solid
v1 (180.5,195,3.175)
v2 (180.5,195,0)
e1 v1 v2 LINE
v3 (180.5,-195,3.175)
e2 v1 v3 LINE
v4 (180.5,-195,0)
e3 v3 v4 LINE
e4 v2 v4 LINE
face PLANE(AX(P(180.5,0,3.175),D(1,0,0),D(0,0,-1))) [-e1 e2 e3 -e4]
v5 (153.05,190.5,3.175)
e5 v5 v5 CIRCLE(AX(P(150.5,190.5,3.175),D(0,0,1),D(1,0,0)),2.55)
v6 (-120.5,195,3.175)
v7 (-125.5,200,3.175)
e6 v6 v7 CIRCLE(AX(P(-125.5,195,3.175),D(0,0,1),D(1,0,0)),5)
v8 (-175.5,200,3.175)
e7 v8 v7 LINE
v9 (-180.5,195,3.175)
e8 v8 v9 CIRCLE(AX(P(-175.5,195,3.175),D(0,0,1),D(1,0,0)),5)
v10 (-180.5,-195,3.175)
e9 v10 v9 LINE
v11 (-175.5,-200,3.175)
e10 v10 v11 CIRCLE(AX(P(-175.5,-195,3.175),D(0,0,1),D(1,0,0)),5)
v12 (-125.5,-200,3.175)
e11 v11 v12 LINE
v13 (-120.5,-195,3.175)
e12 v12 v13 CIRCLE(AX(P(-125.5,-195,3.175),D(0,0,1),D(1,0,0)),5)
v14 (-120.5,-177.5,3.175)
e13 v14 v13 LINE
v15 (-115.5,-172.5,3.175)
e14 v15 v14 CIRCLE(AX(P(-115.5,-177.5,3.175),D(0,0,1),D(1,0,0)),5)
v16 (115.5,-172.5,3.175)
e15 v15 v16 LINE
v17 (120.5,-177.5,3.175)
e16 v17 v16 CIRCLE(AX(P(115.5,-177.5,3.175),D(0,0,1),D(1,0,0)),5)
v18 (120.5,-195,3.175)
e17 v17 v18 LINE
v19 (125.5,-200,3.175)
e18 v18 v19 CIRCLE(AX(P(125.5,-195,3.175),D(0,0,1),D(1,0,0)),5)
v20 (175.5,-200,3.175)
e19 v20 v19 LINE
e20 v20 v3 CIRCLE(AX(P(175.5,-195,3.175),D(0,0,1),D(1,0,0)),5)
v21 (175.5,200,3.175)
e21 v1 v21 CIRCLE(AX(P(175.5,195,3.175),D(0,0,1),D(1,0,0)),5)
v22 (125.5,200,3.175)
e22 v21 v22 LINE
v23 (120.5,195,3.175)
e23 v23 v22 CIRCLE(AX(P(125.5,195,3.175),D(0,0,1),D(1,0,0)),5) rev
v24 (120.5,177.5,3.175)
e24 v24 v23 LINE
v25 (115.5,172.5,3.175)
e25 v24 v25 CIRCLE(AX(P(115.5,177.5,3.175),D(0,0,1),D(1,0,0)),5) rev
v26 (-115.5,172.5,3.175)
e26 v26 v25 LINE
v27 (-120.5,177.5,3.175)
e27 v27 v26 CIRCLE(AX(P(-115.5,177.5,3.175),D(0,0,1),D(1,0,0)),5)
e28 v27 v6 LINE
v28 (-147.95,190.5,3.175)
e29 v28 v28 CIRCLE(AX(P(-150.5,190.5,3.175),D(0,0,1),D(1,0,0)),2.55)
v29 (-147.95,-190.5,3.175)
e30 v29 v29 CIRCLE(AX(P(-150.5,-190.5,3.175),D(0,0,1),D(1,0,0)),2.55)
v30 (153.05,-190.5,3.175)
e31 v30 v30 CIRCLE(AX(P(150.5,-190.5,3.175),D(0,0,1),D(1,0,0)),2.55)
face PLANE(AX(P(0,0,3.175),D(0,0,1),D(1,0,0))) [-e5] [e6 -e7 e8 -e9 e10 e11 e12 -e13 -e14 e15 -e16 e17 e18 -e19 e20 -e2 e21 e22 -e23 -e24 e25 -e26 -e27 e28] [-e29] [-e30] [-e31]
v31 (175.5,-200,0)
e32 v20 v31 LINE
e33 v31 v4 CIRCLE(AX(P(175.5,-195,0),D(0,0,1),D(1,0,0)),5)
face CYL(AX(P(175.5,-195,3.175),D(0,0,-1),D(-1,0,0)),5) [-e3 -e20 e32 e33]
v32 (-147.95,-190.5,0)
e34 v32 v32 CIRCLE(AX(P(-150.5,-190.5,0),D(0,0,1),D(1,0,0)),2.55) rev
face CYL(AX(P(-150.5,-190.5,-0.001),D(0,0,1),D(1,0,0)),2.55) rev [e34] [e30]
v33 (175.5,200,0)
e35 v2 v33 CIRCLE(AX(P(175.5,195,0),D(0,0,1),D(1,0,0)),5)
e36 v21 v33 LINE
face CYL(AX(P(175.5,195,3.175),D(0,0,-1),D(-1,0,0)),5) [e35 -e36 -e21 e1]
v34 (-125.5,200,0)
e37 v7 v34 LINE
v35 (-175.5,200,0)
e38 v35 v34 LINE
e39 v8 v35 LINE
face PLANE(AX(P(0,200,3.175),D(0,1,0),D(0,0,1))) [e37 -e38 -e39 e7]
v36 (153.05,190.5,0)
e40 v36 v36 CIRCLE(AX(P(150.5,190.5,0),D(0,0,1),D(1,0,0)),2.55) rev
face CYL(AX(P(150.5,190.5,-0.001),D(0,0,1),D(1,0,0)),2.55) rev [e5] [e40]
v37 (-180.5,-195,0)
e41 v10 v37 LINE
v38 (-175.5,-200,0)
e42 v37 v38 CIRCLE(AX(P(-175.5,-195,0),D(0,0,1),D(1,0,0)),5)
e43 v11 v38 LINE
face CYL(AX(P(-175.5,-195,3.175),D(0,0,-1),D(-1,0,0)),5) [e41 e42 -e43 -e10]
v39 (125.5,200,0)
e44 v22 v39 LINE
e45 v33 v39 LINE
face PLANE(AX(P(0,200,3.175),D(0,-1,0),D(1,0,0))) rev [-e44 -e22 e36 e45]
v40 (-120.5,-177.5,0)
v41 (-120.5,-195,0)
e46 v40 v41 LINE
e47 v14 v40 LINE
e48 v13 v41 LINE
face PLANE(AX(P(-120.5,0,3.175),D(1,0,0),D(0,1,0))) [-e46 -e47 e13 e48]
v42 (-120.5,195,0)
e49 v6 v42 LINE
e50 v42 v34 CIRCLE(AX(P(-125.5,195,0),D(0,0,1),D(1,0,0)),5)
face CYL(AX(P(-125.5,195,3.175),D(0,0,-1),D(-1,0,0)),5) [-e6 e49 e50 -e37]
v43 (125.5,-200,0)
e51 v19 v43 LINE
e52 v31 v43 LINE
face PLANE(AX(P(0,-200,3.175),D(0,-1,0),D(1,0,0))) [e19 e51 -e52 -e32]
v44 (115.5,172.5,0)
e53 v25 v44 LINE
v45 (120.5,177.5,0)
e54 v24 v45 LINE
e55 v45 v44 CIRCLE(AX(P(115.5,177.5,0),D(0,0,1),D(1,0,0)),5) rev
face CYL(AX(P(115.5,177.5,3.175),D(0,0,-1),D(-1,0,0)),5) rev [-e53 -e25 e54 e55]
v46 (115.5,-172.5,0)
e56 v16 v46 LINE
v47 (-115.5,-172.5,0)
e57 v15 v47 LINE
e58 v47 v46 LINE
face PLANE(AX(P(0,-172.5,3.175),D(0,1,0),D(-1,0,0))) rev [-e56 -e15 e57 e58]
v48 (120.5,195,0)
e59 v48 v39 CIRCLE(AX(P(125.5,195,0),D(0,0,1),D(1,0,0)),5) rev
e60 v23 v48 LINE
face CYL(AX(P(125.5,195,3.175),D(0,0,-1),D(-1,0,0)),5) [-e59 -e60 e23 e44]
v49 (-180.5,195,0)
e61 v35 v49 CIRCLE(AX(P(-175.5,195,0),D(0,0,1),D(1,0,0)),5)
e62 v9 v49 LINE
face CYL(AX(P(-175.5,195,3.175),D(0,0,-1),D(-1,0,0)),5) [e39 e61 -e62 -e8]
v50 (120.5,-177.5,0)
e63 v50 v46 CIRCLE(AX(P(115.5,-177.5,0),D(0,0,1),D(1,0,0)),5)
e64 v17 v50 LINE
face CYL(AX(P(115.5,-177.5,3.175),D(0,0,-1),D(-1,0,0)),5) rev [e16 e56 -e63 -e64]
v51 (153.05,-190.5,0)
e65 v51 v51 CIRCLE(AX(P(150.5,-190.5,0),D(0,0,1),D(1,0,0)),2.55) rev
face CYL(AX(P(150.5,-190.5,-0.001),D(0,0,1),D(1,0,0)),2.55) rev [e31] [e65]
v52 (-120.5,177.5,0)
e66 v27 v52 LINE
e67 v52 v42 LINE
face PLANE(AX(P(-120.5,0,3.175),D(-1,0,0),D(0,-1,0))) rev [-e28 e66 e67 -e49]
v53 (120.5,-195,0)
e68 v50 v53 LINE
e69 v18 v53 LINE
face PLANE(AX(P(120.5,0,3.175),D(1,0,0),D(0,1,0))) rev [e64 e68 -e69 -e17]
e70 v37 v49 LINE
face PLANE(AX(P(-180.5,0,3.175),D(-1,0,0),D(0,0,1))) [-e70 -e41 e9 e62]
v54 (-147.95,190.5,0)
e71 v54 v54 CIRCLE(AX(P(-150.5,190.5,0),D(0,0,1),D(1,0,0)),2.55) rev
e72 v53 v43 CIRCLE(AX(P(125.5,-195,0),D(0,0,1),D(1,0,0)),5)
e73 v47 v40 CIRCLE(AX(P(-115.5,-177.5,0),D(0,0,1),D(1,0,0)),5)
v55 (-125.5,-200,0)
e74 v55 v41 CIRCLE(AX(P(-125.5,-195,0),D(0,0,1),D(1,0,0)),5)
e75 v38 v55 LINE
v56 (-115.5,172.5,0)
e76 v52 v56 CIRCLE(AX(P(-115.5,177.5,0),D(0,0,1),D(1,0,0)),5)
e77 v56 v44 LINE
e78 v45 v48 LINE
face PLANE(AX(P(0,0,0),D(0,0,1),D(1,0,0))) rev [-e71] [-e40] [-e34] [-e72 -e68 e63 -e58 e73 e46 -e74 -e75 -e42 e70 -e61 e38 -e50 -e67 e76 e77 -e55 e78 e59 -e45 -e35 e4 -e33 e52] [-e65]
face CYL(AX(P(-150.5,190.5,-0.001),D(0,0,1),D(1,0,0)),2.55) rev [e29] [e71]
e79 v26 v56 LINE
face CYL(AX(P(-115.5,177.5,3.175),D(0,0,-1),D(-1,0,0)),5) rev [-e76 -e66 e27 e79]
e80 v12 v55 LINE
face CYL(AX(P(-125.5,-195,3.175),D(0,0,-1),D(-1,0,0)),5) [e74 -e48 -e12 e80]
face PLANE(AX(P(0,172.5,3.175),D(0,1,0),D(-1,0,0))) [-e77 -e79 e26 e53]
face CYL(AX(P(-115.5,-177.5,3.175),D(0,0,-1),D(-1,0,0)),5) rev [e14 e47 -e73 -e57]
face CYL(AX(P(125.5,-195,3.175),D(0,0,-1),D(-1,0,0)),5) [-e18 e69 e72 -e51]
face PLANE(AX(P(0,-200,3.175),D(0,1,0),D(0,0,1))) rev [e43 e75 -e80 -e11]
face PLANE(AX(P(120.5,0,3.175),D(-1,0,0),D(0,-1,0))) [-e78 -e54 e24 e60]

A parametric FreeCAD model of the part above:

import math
import FreeCAD as App
import Part
import Sketcher
from FreeCAD import Vector

doc = App.newDocument("Part")
params = doc.addObject("Spreadsheet::Sheet", "Params")
for row, (alias, value) in enumerate([
    ("sketch1_radius", "5 mm"),
    ("sketch1_width", "50 mm"),
    ("sketch1_width2", "231 mm"),
    ("sketch1_height", "390 mm"),
    ("sketch1_height2", "17.5 mm"),
    ("pad1_length", "3.175 mm"),
    ("sketch2_diameter", "5.1 mm"),
    ("sketch3_diameter", "5.1 mm"),
    ("sketch4_diameter", "5.1 mm"),
    ("sketch5_diameter", "5.1 mm"),
], start=1):
    params.set(f"A{row}", alias)
    params.set(f"B{row}", "=" + value)
    params.setAlias(f"B{row}", alias)

body = doc.addObject("PartDesign::Body", "Body")

sketch1 = body.newObject("Sketcher::SketchObject", "Sketch")
sketch1.AttachmentSupport = (doc.getObject("XY_Plane"), [""])
sketch1.MapMode = "FlatFace"
sketch1.addGeometry([
    Part.LineSegment(Vector(175.5, 200, 0), Vector(125.5, 200, 0)),
    Part.ArcOfCircle(Part.Circle(Vector(125.5, 195, 0), Vector(0, 0, 1), 5), math.radians(90), math.radians(180)),
    Part.LineSegment(Vector(120.5, 195, 0), Vector(120.5, 177.5, 0)),
    Part.ArcOfCircle(Part.Circle(Vector(115.5, 177.5, 0), Vector(0, 0, 1), 5), math.radians(-90), math.radians(0)),
    Part.LineSegment(Vector(115.5, 172.5, 0), Vector(-115.5, 172.5, 0)),
    Part.ArcOfCircle(Part.Circle(Vector(-115.5, 177.5, 0), Vector(0, 0, 1), 5), math.radians(180), math.radians(270)),
    Part.LineSegment(Vector(-120.5, 177.5, 0), Vector(-120.5, 195, 0)),
    Part.ArcOfCircle(Part.Circle(Vector(-125.5, 195, 0), Vector(0, 0, 1), 5), math.radians(0), math.radians(90)),
    Part.LineSegment(Vector(-125.5, 200, 0), Vector(-175.5, 200, 0)),
    Part.ArcOfCircle(Part.Circle(Vector(-175.5, 195, 0), Vector(0, 0, 1), 5), math.radians(90), math.radians(180)),
    Part.LineSegment(Vector(-180.5, 195, 0), Vector(-180.5, -195, 0)),
    Part.ArcOfCircle(Part.Circle(Vector(-175.5, -195, 0), Vector(0, 0, 1), 5), math.radians(180), math.radians(270)),
    Part.LineSegment(Vector(-175.5, -200, 0), Vector(-125.5, -200, 0)),
    Part.ArcOfCircle(Part.Circle(Vector(-125.5, -195, 0), Vector(0, 0, 1), 5), math.radians(-90), math.radians(0)),
    Part.LineSegment(Vector(-120.5, -195, 0), Vector(-120.5, -177.5, 0)),
    Part.ArcOfCircle(Part.Circle(Vector(-115.5, -177.5, 0), Vector(0, 0, 1), 5), math.radians(90), math.radians(180)),
    Part.LineSegment(Vector(-115.5, -172.5, 0), Vector(115.5, -172.5, 0)),
    Part.ArcOfCircle(Part.Circle(Vector(115.5, -177.5, 0), Vector(0, 0, 1), 5), math.radians(0), math.radians(90)),
    Part.LineSegment(Vector(120.5, -177.5, 0), Vector(120.5, -195, 0)),
    Part.ArcOfCircle(Part.Circle(Vector(125.5, -195, 0), Vector(0, 0, 1), 5), math.radians(180), math.radians(270)),
    Part.LineSegment(Vector(125.5, -200, 0), Vector(175.5, -200, 0)),
    Part.ArcOfCircle(Part.Circle(Vector(175.5, -195, 0), Vector(0, 0, 1), 5), math.radians(-90), math.radians(0)),
    Part.LineSegment(Vector(180.5, -195, 0), Vector(180.5, 195, 0)),
    Part.ArcOfCircle(Part.Circle(Vector(175.5, 195, 0), Vector(0, 0, 1), 5), math.radians(0), math.radians(90)),
], False)
sketch1.addConstraint([
    Sketcher.Constraint("Tangent", 0, 2, 1, 1),
    Sketcher.Constraint("Tangent", 1, 2, 2, 1),
    Sketcher.Constraint("Tangent", 2, 2, 3, 2),
    Sketcher.Constraint("Tangent", 3, 1, 4, 1),
    Sketcher.Constraint("Tangent", 4, 2, 5, 2),
    Sketcher.Constraint("Tangent", 5, 1, 6, 1),
    Sketcher.Constraint("Tangent", 6, 2, 7, 1),
    Sketcher.Constraint("Tangent", 7, 2, 8, 1),
    Sketcher.Constraint("Tangent", 8, 2, 9, 1),
    Sketcher.Constraint("Tangent", 9, 2, 10, 1),
    Sketcher.Constraint("Tangent", 10, 2, 11, 1),
    Sketcher.Constraint("Tangent", 11, 2, 12, 1),
    Sketcher.Constraint("Tangent", 12, 2, 13, 1),
    Sketcher.Constraint("Tangent", 13, 2, 14, 1),
    Sketcher.Constraint("Tangent", 14, 2, 15, 2),
    Sketcher.Constraint("Tangent", 15, 1, 16, 1),
    Sketcher.Constraint("Tangent", 16, 2, 17, 2),
    Sketcher.Constraint("Tangent", 17, 1, 18, 1),
    Sketcher.Constraint("Tangent", 18, 2, 19, 1),
    Sketcher.Constraint("Tangent", 19, 2, 20, 1),
    Sketcher.Constraint("Tangent", 20, 2, 21, 1),
    Sketcher.Constraint("Tangent", 21, 2, 22, 1),
    Sketcher.Constraint("Tangent", 22, 2, 23, 1),
    Sketcher.Constraint("Tangent", 23, 2, 0, 1),
    Sketcher.Constraint("Horizontal", 0),
    Sketcher.Constraint("Vertical", 2),
    Sketcher.Constraint("Horizontal", 4),
    Sketcher.Constraint("Vertical", 6),
    Sketcher.Constraint("Horizontal", 8),
    Sketcher.Constraint("Vertical", 10),
    Sketcher.Constraint("Horizontal", 12),
    Sketcher.Constraint("Vertical", 14),
    Sketcher.Constraint("Horizontal", 16),
    Sketcher.Constraint("Vertical", 18),
    Sketcher.Constraint("Horizontal", 20),
    Sketcher.Constraint("Vertical", 22),
    Sketcher.Constraint("Equal", 1, 3),
    Sketcher.Constraint("Equal", 3, 5),
    Sketcher.Constraint("Equal", 5, 7),
    Sketcher.Constraint("Equal", 7, 9),
    Sketcher.Constraint("Equal", 9, 11),
    Sketcher.Constraint("Equal", 11, 13),
    Sketcher.Constraint("Equal", 13, 15),
    Sketcher.Constraint("Equal", 15, 17),
    Sketcher.Constraint("Equal", 17, 19),
    Sketcher.Constraint("Equal", 19, 21),
    Sketcher.Constraint("Equal", 21, 23),
    Sketcher.Constraint("Symmetric", 1, 3, 13, 3, -1, 1),
    Sketcher.Constraint("Symmetric", 5, 3, 17, 3, -1, 1),
    Sketcher.Constraint("Symmetric", 9, 3, 21, 3, -1, 1),
    Sketcher.Constraint("Symmetric", 1, 3, 7, 3, -2),
    Sketcher.Constraint("Radius", 1, 5.0),
    Sketcher.Constraint("DistanceX", 0, 2, 0, 1, 50.0),
    Sketcher.Constraint("DistanceX", 4, 2, 4, 1, 231.0),
    Sketcher.Constraint("DistanceY", 10, 2, 10, 1, 390.0),
    Sketcher.Constraint("DistanceY", 2, 2, 2, 1, 17.5),
])
sketch1.setExpression("Constraints[51]", "Params.sketch1_radius")
sketch1.setExpression("Constraints[52]", "Params.sketch1_width")
sketch1.setExpression("Constraints[53]", "Params.sketch1_width2")
sketch1.setExpression("Constraints[54]", "Params.sketch1_height")
sketch1.setExpression("Constraints[55]", "Params.sketch1_height2")
pad1 = body.newObject("PartDesign::Pad", "Pad")
pad1.Profile = sketch1
pad1.setExpression("Length", "Params.pad1_length")

sketch2 = body.newObject("Sketcher::SketchObject", "Sketch001")
sketch2.AttachmentSupport = (doc.getObject("XY_Plane"), [""])
sketch2.MapMode = "FlatFace"
sketch2.AttachmentOffset = App.Placement(Vector(0, 0, 3.175), App.Rotation())
sketch2.addGeometry(Part.Circle(Vector(-150.5, 190.5, 0), Vector(0, 0, 1), 2.55), False)
sketch2.addConstraint([
    Sketcher.Constraint("Diameter", 0, 5.1),
    Sketcher.Constraint("DistanceX", 0, 3, -1, 1, 150.5),
    Sketcher.Constraint("DistanceY", -1, 1, 0, 3, 190.5),
])
sketch2.setExpression("Constraints[0]", "Params.sketch2_diameter")
pocket1 = body.newObject("PartDesign::Pocket", "Pocket")
pocket1.Profile = sketch2
pocket1.Type = "UpToFirst"

sketch3 = body.newObject("Sketcher::SketchObject", "Sketch002")
sketch3.AttachmentSupport = (doc.getObject("XY_Plane"), [""])
sketch3.MapMode = "FlatFace"
sketch3.AttachmentOffset = App.Placement(Vector(0, 0, 3.175), App.Rotation())
sketch3.addGeometry(Part.Circle(Vector(-150.5, -190.5, 0), Vector(0, 0, 1), 2.55), False)
sketch3.addConstraint([
    Sketcher.Constraint("Diameter", 0, 5.1),
    Sketcher.Constraint("DistanceX", 0, 3, -1, 1, 150.5),
    Sketcher.Constraint("DistanceY", 0, 3, -1, 1, 190.5),
])
sketch3.setExpression("Constraints[0]", "Params.sketch3_diameter")
pocket2 = body.newObject("PartDesign::Pocket", "Pocket001")
pocket2.Profile = sketch3
pocket2.Type = "UpToFirst"

sketch4 = body.newObject("Sketcher::SketchObject", "Sketch003")
sketch4.AttachmentSupport = (doc.getObject("XY_Plane"), [""])
sketch4.MapMode = "FlatFace"
sketch4.AttachmentOffset = App.Placement(Vector(0, 0, 3.175), App.Rotation())
sketch4.addGeometry(Part.Circle(Vector(150.5, -190.5, 0), Vector(0, 0, 1), 2.55), False)
sketch4.addConstraint([
    Sketcher.Constraint("Diameter", 0, 5.1),
    Sketcher.Constraint("DistanceX", -1, 1, 0, 3, 150.5),
    Sketcher.Constraint("DistanceY", 0, 3, -1, 1, 190.5),
])
sketch4.setExpression("Constraints[0]", "Params.sketch4_diameter")
pocket3 = body.newObject("PartDesign::Pocket", "Pocket002")
pocket3.Profile = sketch4
pocket3.Type = "UpToFirst"

sketch5 = body.newObject("Sketcher::SketchObject", "Sketch004")
sketch5.AttachmentSupport = (doc.getObject("XY_Plane"), [""])
sketch5.MapMode = "FlatFace"
sketch5.AttachmentOffset = App.Placement(Vector(0, 0, 3.175), App.Rotation())
sketch5.addGeometry(Part.Circle(Vector(150.5, 190.5, 0), Vector(0, 0, 1), 2.55), False)
sketch5.addConstraint([
    Sketcher.Constraint("Diameter", 0, 5.1),
    Sketcher.Constraint("DistanceX", -1, 1, 0, 3, 150.5),
    Sketcher.Constraint("DistanceY", -1, 1, 0, 3, 190.5),
])
sketch5.setExpression("Constraints[0]", "Params.sketch5_diameter")
pocket4 = body.newObject("PartDesign::Pocket", "Pocket003")
pocket4.Profile = sketch5
pocket4.Type = "UpToFirst"

doc.recompute()
